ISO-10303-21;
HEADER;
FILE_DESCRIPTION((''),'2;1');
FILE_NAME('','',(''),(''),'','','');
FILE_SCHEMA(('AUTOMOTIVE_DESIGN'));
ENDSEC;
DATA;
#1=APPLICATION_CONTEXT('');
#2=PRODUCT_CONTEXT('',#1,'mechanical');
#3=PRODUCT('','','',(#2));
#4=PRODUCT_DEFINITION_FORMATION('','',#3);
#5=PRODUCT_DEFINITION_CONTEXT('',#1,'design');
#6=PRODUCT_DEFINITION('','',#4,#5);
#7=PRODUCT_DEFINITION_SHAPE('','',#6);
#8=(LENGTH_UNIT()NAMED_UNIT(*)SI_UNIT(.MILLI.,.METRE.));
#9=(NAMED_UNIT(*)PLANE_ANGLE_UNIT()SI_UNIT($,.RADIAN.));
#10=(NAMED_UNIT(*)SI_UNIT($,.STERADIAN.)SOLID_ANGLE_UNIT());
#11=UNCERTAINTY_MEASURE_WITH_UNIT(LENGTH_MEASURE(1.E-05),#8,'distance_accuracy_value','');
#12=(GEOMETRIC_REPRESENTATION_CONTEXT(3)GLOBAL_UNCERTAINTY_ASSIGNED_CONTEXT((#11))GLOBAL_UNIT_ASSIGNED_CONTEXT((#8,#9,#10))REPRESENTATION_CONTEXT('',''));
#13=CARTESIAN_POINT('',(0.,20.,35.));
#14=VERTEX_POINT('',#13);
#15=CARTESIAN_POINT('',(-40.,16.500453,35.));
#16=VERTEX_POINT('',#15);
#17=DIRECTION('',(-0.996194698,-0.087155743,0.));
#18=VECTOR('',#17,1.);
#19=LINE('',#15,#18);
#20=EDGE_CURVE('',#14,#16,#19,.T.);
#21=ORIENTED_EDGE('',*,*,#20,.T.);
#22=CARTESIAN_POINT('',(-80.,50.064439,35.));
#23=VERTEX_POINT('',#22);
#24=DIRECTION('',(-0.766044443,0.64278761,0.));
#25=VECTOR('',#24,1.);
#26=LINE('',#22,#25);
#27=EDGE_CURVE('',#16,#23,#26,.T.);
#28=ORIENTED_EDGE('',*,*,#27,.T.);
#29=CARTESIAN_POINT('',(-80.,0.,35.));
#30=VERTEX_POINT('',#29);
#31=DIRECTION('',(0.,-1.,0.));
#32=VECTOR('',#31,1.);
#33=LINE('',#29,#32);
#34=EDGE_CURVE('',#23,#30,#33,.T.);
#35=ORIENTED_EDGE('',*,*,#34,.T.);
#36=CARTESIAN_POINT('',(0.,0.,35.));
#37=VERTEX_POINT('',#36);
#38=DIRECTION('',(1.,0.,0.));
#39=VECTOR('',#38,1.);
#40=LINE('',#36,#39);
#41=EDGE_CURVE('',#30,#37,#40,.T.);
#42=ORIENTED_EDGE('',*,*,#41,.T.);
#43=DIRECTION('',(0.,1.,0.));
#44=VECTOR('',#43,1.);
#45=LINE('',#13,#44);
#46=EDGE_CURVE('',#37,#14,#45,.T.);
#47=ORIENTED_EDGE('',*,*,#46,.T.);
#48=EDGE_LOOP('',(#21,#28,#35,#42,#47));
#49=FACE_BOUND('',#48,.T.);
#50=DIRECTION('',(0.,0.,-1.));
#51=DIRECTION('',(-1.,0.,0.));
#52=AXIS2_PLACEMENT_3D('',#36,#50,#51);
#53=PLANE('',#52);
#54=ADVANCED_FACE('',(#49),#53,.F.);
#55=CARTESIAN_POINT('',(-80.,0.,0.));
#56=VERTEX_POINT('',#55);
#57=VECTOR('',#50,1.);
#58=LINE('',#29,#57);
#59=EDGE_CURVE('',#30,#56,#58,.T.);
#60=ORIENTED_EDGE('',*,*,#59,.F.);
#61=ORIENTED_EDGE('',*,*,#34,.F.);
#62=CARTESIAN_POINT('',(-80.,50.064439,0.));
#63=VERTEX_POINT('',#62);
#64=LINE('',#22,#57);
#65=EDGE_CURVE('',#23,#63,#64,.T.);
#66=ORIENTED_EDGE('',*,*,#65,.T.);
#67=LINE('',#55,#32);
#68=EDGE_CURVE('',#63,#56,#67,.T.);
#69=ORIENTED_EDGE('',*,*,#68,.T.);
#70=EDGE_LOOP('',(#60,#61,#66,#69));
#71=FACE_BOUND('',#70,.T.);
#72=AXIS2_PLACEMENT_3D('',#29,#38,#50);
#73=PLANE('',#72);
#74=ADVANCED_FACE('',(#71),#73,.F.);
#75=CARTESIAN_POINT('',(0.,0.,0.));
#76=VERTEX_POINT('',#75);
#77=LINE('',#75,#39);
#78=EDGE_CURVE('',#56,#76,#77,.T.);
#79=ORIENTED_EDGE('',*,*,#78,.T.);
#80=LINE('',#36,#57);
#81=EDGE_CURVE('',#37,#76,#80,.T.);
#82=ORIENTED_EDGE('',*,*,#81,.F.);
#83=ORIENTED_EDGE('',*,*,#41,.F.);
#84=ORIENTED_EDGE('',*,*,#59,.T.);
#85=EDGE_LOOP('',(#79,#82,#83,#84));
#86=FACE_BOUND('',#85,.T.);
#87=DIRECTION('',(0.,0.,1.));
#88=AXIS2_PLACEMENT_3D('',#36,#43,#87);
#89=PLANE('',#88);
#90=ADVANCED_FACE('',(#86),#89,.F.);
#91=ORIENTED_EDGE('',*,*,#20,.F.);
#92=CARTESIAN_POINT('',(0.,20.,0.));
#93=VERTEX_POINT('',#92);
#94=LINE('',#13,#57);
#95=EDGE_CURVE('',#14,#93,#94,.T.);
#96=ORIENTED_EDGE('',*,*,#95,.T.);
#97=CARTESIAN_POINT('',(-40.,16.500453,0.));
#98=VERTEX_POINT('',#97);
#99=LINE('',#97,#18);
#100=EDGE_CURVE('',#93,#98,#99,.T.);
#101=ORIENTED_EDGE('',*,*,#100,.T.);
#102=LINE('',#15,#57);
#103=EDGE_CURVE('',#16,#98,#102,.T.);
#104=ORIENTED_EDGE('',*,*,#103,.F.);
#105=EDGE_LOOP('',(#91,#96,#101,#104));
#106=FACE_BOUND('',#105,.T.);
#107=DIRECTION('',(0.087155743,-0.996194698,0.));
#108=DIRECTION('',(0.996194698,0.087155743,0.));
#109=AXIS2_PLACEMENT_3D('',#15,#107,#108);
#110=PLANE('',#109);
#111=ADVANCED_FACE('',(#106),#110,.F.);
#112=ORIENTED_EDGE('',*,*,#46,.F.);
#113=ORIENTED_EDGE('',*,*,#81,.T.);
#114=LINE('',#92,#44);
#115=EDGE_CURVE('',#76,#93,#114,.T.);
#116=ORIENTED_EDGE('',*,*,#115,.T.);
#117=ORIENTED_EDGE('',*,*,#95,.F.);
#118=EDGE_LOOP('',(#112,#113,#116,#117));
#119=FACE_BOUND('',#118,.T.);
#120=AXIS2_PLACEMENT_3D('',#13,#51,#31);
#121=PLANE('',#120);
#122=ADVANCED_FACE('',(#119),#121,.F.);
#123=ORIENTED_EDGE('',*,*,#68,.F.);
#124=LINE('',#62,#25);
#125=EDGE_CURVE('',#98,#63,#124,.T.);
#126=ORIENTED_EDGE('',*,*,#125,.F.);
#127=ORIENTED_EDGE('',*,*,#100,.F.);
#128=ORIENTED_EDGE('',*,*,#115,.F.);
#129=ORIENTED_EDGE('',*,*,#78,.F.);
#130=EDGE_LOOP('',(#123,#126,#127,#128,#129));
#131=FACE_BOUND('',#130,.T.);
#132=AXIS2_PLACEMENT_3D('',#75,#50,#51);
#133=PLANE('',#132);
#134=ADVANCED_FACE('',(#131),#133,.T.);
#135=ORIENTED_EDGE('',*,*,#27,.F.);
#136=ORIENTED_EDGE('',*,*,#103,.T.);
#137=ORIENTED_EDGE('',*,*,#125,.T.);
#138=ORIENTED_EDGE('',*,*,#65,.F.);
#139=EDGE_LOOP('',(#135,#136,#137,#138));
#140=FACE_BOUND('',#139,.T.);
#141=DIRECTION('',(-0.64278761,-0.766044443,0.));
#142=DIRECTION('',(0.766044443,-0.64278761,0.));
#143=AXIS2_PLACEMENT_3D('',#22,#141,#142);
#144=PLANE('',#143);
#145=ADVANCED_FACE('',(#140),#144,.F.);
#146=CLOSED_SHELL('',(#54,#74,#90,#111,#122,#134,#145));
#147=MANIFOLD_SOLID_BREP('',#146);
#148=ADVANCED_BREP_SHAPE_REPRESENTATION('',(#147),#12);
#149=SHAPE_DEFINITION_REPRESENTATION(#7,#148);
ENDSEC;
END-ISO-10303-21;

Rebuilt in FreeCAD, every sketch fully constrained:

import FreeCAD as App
import Part
import Sketcher
from FreeCAD import Vector
Q = App.Units.Quantity


def add_polygon(sketch, points):
    """Adds a closed chain of lines whose ends are joined by coincident constraints."""
    first, n = sketch.GeometryCount, len(points)
    for a, b in zip(points, points[1:] + points[:1]):
        sketch.addGeometry(Part.LineSegment(App.Vector(*a, 0), App.Vector(*b, 0)), False)
    for i in range(n):
        sketch.addConstraint(Sketcher.Constraint("Coincident", first + i, 2, first + (i + 1) % n, 1))

doc = App.newDocument("Part")
body = doc.addObject("PartDesign::Body", "Body")

# Sketch on XY plane
sketch1 = body.newObject("Sketcher::SketchObject", "Sketch")
sketch1.AttachmentSupport = (doc.getObject("XY_Plane"), [""])
sketch1.MapMode = "FlatFace"
add_polygon(sketch1, [(-80, 0), (0, 0), (0, 20), (-40, 17), (-80, 50)])  # lines 0-4
sketch1.addConstraint(Sketcher.Constraint("Horizontal", 0))
sketch1.addConstraint(Sketcher.Constraint("Vertical", 1))
sketch1.addConstraint(Sketcher.Constraint("Vertical", 4))
sketch1.addConstraint(Sketcher.Constraint("Coincident", 0, 2, -1, 1))
sketch1.addConstraint(Sketcher.Constraint("DistanceX", 0, 1, 0, 2, Q("80 mm")))
sketch1.addConstraint(Sketcher.Constraint("DistanceY", 1, 1, 1, 2, Q("20 mm")))
sketch1.addConstraint(Sketcher.Constraint("Angle", 2, Q("-175 deg")))
sketch1.addConstraint(Sketcher.Constraint("Angle", 3, Q("140 deg")))
sketch1.addConstraint(Sketcher.Constraint("DistanceX", 2, 2, -1, 1, Q("40 mm")))
pad1 = body.newObject("PartDesign::Pad", "Pad")
pad1.Profile = sketch1
pad1.Length = 35

doc.recompute()
